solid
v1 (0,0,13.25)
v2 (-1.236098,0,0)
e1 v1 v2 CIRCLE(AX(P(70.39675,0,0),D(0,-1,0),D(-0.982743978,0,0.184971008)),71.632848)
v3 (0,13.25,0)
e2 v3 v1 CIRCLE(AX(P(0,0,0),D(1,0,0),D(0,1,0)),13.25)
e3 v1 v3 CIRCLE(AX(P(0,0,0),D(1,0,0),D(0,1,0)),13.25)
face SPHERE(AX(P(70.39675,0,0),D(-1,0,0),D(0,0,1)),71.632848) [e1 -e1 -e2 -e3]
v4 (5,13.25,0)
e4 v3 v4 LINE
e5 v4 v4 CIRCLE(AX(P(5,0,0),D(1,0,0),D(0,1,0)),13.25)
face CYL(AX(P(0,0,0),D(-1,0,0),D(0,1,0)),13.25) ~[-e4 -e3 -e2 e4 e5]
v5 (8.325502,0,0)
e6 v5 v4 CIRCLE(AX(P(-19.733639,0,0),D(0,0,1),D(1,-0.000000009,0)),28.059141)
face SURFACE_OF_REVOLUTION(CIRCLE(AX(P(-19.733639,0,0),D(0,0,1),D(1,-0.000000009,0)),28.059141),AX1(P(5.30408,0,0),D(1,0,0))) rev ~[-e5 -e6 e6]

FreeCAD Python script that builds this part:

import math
import FreeCAD as App
import Part
import Sketcher

V = App.Vector
Q = App.Units.Quantity

doc = App.newDocument("Part")
body = doc.addObject("PartDesign::Body", "Body")

# Sketch on YZ plane
sketch1 = body.newObject("Sketcher::SketchObject", "Sketch")
sketch1.AttachmentSupport = (doc.getObject("YZ_Plane"), [""])
sketch1.MapMode = "FlatFace"
sketch1.addGeometry(Part.Circle(V(0, 0, 0), V(0, 0, 1), 13), False)
sketch1.addConstraint([
    Sketcher.Constraint("Coincident", 0, 3, -1, 1),
    Sketcher.Constraint("Diameter", 0, Q("26.5 mm")),
])
pad1 = body.newObject("PartDesign::Pad", "Pad")
pad1.Profile = sketch1
pad1.Length = 5

# Sketch on XY plane
sketch2 = body.newObject("Sketcher::SketchObject", "Sketch001")
sketch2.AttachmentSupport = (doc.getObject("XY_Plane"), [""])
sketch2.MapMode = "FlatFace"
sketch2.addGeometry([
    Part.ArcOfCircle(Part.Circle(V(-19.7, 0, 0), V(0, 0, 1), 28.1), math.radians(0), math.radians(28)),
    Part.LineSegment(V(5, 13.2, 0), V(5, 0, 0)),
    Part.LineSegment(V(5, 0, 0), V(8.3, 0, 0)),
], False)
sketch2.addConstraint([
    Sketcher.Constraint("Coincident", 0, 2, 1, 1),
    Sketcher.Constraint("Coincident", 1, 2, 2, 1),
    Sketcher.Constraint("Coincident", 2, 2, 0, 1),
    Sketcher.Constraint("Vertical", 1),
    Sketcher.Constraint("Horizontal", 2),
    Sketcher.Constraint("PointOnObject", 0, 3, -1),
    Sketcher.Constraint("PointOnObject", 1, 2, -1),
    Sketcher.Constraint("DistanceX", -1, 1, 0, 2, Q("5 mm")),
    Sketcher.Constraint("DistanceY", 1, 2, 1, 1, Q("13.25 mm")),
    Sketcher.Constraint("Radius", 0, Q("28.059141 mm")),
])
revolution = body.newObject("PartDesign::Revolution", "Revolution")
revolution.Profile = sketch2
revolution.ReferenceAxis = (sketch2, ["H_Axis"])
revolution.Angle = 360

# Sketch on XZ plane
sketch3 = body.newObject("Sketcher::SketchObject", "Sketch002")
sketch3.AttachmentSupport = (doc.getObject("XZ_Plane"), [""])
sketch3.MapMode = "FlatFace"
sketch3.addGeometry([
    Part.LineSegment(V(-1.2, 0, 0), V(0, 0, 0)),
    Part.LineSegment(V(0, 0, 0), V(0, 13.2, 0)),
    Part.ArcOfCircle(Part.Circle(V(70.4, 0, 0), V(0, 0, 1), 71.6), math.radians(169.34), math.radians(180)),
], False)
sketch3.addConstraint([
    Sketcher.Constraint("Coincident", 0, 2, 1, 1),
    Sketcher.Constraint("Coincident", 1, 2, 2, 1),
    Sketcher.Constraint("Coincident", 2, 2, 0, 1),
    Sketcher.Constraint("Horizontal", 0),
    Sketcher.Constraint("Vertical", 1),
    Sketcher.Constraint("Coincident", 0, 2, -1, 1),
    Sketcher.Constraint("PointOnObject", 2, 3, -1),
    Sketcher.Constraint("DistanceY", 1, 1, 1, 2, Q("13.25 mm")),
    Sketcher.Constraint("Radius", 2, Q("71.632848 mm")),
])
revolution2 = body.newObject("PartDesign::Revolution", "Revolution001")
revolution2.Profile = sketch3
revolution2.ReferenceAxis = (sketch3, ["H_Axis"])
revolution2.Angle = 360

doc.recompute()
